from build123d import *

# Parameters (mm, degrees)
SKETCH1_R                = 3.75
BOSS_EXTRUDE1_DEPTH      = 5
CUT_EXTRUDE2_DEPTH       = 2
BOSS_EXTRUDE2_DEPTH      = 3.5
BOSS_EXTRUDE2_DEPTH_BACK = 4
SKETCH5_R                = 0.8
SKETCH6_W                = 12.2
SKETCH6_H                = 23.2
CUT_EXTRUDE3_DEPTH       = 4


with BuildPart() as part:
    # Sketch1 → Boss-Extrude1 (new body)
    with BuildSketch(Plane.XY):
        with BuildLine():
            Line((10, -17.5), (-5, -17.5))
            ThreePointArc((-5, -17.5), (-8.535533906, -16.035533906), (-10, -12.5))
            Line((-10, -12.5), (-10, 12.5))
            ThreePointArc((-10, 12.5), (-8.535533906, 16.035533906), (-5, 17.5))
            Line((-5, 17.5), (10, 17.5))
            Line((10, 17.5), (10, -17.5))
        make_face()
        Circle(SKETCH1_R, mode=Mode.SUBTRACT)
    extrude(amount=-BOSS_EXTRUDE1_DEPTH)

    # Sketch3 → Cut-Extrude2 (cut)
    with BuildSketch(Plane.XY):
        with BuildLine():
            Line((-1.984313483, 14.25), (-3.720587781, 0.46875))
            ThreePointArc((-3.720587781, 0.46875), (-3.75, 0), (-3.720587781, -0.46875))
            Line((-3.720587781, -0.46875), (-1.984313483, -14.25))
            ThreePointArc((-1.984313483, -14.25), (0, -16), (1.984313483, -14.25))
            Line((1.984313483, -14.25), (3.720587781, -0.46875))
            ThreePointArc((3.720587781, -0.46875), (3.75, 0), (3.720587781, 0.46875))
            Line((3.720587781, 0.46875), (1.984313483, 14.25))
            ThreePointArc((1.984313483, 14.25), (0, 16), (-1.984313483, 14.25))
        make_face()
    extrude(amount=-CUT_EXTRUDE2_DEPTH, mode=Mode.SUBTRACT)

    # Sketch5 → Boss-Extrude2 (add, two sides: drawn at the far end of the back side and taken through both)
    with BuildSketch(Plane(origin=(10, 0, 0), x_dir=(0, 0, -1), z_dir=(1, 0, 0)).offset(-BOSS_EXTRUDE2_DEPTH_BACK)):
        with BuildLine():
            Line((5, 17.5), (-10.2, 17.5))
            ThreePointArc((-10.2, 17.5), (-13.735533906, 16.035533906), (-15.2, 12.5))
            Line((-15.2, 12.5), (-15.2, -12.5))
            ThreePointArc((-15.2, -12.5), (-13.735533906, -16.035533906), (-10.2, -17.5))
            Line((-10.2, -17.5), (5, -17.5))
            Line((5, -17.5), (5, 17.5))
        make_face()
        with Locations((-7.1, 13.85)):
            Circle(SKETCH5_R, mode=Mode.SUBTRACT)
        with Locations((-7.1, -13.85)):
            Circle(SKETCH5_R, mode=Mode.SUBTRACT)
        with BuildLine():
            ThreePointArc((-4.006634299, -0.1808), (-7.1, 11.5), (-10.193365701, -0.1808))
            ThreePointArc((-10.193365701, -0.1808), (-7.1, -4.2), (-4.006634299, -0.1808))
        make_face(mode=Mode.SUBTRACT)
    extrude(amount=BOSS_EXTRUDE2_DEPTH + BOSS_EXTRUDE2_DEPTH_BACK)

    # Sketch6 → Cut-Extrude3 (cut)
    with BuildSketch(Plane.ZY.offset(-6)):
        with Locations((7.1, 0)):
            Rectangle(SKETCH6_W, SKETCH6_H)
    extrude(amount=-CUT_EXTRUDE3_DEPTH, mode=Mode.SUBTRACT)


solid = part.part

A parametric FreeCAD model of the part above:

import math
import FreeCAD as App
import Part
import Sketcher

doc = App.newDocument("Part")
body = doc.addObject("PartDesign::Body", "Body")

# Sketch on XY plane
sketch1 = body.newObject("Sketcher::SketchObject", "Sketch")
sketch1.AttachmentSupport = (doc.getObject("XY_Plane"), [""])
sketch1.MapMode = "FlatFace"
sketch1.addGeometry([
    Part.LineSegment(App.Vector(-5, -17.5, 0), App.Vector(10, -17.5, 0)),  # 0
    Part.LineSegment(App.Vector(10, -17.5, 0), App.Vector(10, 17.5, 0)),  # 1
    Part.LineSegment(App.Vector(10, 17.5, 0), App.Vector(-5, 17.5, 0)),  # 2
    Part.ArcOfCircle(Part.Circle(App.Vector(-5, 12.5, 0), App.Vector(0, 0, 1), 5), math.radians(90), math.radians(180)),  # 3
    Part.LineSegment(App.Vector(-10, 12.5, 0), App.Vector(-10, -12.5, 0)),  # 4
    Part.ArcOfCircle(Part.Circle(App.Vector(-5, -12.5, 0), App.Vector(0, 0, 1), 5), math.radians(180), math.radians(270)),  # 5
    Part.Circle(App.Vector(0, 0, 0), App.Vector(0, 0, 1), 3.8),  # 6
], False)
sketch1.addConstraint([
    Sketcher.Constraint("Coincident", 0, 2, 1, 1),
    Sketcher.Constraint("Coincident", 1, 2, 2, 1),
    Sketcher.Constraint("Tangent", 2, 2, 3, 1),
    Sketcher.Constraint("Tangent", 3, 2, 4, 1),
    Sketcher.Constraint("Tangent", 4, 2, 5, 1),
    Sketcher.Constraint("Tangent", 5, 2, 0, 1),
    Sketcher.Constraint("Horizontal", 0),
    Sketcher.Constraint("Vertical", 1),
    Sketcher.Constraint("Horizontal", 2),
    Sketcher.Constraint("Vertical", 4),
    Sketcher.Constraint("Coincident", 6, 3, -1, 1),
    Sketcher.Constraint("Equal", 3, 5),
    Sketcher.Constraint("Radius", 3, 5.0),
    Sketcher.Constraint("Diameter", 6, 7.5),
    Sketcher.Constraint("DistanceX", 0, 1, 0, 2, 15.0),
    Sketcher.Constraint("DistanceY", 1, 1, 1, 2, 35.0),
    Sketcher.Constraint("DistanceX", 3, 3, -1, 1, 5.0),
    Sketcher.Constraint("DistanceY", -1, 1, 3, 3, 12.5),
])
pad1 = body.newObject("PartDesign::Pad", "Pad")
pad1.Profile = sketch1
pad1.Length = 5
pad1.Reversed = True

# Sketch on XY plane
sketch2 = body.newObject("Sketcher::SketchObject", "Sketch001")
sketch2.AttachmentSupport = (doc.getObject("XY_Plane"), [""])
sketch2.MapMode = "FlatFace"
sketch2.addGeometry([
    Part.LineSegment(App.Vector(-2, 14.2, 0), App.Vector(-3.7, 0.5, 0)),  # 0
    Part.ArcOfCircle(Part.Circle(App.Vector(0, 0, 0), App.Vector(0, 0, 1), 3.7), math.radians(172.82), math.radians(187.18)),  # 1
    Part.LineSegment(App.Vector(-3.7, -0.5, 0), App.Vector(-2, -14.2, 0)),  # 2
    Part.ArcOfCircle(Part.Circle(App.Vector(0, -14, 0), App.Vector(0, 0, 1), 2), math.radians(-173), math.radians(-7)),  # 3
    Part.LineSegment(App.Vector(2, -14.2, 0), App.Vector(3.7, -0.5, 0)),  # 4
    Part.ArcOfCircle(Part.Circle(App.Vector(0, 0, 0), App.Vector(0, 0, 1), 3.7), math.radians(-7.18), math.radians(7.18)),  # 5
    Part.LineSegment(App.Vector(3.7, 0.5, 0), App.Vector(2, 14.2, 0)),  # 6
    Part.ArcOfCircle(Part.Circle(App.Vector(0, 14, 0), App.Vector(0, 0, 1), 2), math.radians(7), math.radians(173)),  # 7
], False)
sketch2.addConstraint([
    Sketcher.Constraint("Tangent", 0, 2, 1, 1),
    Sketcher.Constraint("Tangent", 1, 2, 2, 1),
    Sketcher.Constraint("Tangent", 2, 2, 3, 1),
    Sketcher.Constraint("Tangent", 3, 2, 4, 1),
    Sketcher.Constraint("Tangent", 4, 2, 5, 1),
    Sketcher.Constraint("Tangent", 5, 2, 6, 1),
    Sketcher.Constraint("Tangent", 6, 2, 7, 1),
    Sketcher.Constraint("Tangent", 7, 2, 0, 1),
    Sketcher.Constraint("Coincident", 1, 3, -1, 1),
    Sketcher.Constraint("Coincident", 5, 3, -1, 1),
    Sketcher.Constraint("Equal", 1, 5),
    Sketcher.Constraint("Equal", 3, 7),
    Sketcher.Constraint("Symmetric", 3, 3, 7, 3, -1, 1),
    Sketcher.Constraint("PointOnObject", 3, 3, -2),
    Sketcher.Constraint("Radius", 3, 2.0),
    Sketcher.Constraint("Radius", 1, 3.75),
    Sketcher.Constraint("DistanceY", 3, 3, -1, 1, 14.0),
])
pocket1 = body.newObject("PartDesign::Pocket", "Pocket")
pocket1.Profile = sketch2
pocket1.Length = 2

# Sketch on YZ plane
sketch3 = body.newObject("Sketcher::SketchObject", "Sketch002")
sketch3.AttachmentSupport = (doc.getObject("YZ_Plane"), [""])
sketch3.MapMode = "FlatFace"
sketch3.AttachmentOffset = App.Placement(App.Vector(0, 0, 10), App.Rotation())
sketch3.addGeometry([
    Part.LineSegment(App.Vector(17.5, -5, 0), App.Vector(17.5, 10.2, 0)),  # 0
    Part.ArcOfCircle(Part.Circle(App.Vector(12.5, 10.2, 0), App.Vector(0, 0, 1), 5), math.radians(0), math.radians(90)),  # 1
    Part.LineSegment(App.Vector(12.5, 15.2, 0), App.Vector(-12.5, 15.2, 0)),  # 2
    Part.ArcOfCircle(Part.Circle(App.Vector(-12.5, 10.2, 0), App.Vector(0, 0, 1), 5), math.radians(90), math.radians(180)),  # 3
    Part.LineSegment(App.Vector(-17.5, 10.2, 0), App.Vector(-17.5, -5, 0)),  # 4
    Part.LineSegment(App.Vector(-17.5, -5, 0), App.Vector(17.5, -5, 0)),  # 5
    Part.Circle(App.Vector(-13.8, 7.1, 0), App.Vector(0, 0, 1), 0.8),  # 6
    Part.ArcOfCircle(Part.Circle(App.Vector(5.2, 7.1, 0), App.Vector(0, 0, 1), 6.2), math.radians(-150), math.radians(150)),  # 7
    Part.ArcOfCircle(Part.Circle(App.Vector(-1, 7.1, 0), App.Vector(0, 0, 1), 3.2), math.radians(75), math.radians(285)),  # 8
    Part.Circle(App.Vector(13.8, 7.1, 0), App.Vector(0, 0, 1), 0.8),  # 9
], False)
sketch3.addConstraint([
    Sketcher.Constraint("Tangent", 0, 2, 1, 1),
    Sketcher.Constraint("Tangent", 1, 2, 2, 1),
    Sketcher.Constraint("Tangent", 2, 2, 3, 1),
    Sketcher.Constraint("Tangent", 3, 2, 4, 1),
    Sketcher.Constraint("Coincident", 4, 2, 5, 1),
    Sketcher.Constraint("Coincident", 5, 2, 0, 1),
    Sketcher.Constraint("Coincident", 7, 1, 8, 2),
    Sketcher.Constraint("Coincident", 8, 1, 7, 2),
    Sketcher.Constraint("Vertical", 0),
    Sketcher.Constraint("Horizontal", 2),
    Sketcher.Constraint("Vertical", 4),
    Sketcher.Constraint("Horizontal", 5),
    Sketcher.Constraint("Equal", 1, 3),
    Sketcher.Constraint("Equal", 6, 9),
    Sketcher.Constraint("Symmetric", 6, 3, 9, 3, -2),
    Sketcher.Constraint("Horizontal", 6, 3, 7, 3),
    Sketcher.Constraint("Horizontal", 7, 3, 8, 3),
    Sketcher.Constraint("Radius", 1, 5.0),
    Sketcher.Constraint("Diameter", 6, 1.6),
    Sketcher.Constraint("Radius", 8, 3.2),
    Sketcher.Constraint("DistanceX", 2, 2, 2, 1, 25.0),
    Sketcher.Constraint("Radius", 7, 6.25),
    Sketcher.Constraint("DistanceY", 0, 1, 0, 2, 15.2),
    Sketcher.Constraint("DistanceX", 8, 3, -1, 1, 1.0),
    Sketcher.Constraint("DistanceY", 4, 2, -1, 1, 5.0),
    Sketcher.Constraint("DistanceX", -1, 1, 1, 3, 12.5),
    Sketcher.Constraint("DistanceY", -1, 1, 6, 3, 7.1),
    Sketcher.Constraint("DistanceX", 6, 3, 7, 3, 19.1),
    Sketcher.Constraint("DistanceX", 7, 3, 9, 3, 8.6),
])
pad2 = body.newObject("PartDesign::Pad", "Pad001")
pad2.Profile = sketch3
pad2.Type = "TwoLengths"
pad2.Length = 3.5
pad2.Length2 = 4

# Sketch on YZ plane
sketch4 = body.newObject("Sketcher::SketchObject", "Sketch003")
sketch4.AttachmentSupport = (doc.getObject("YZ_Plane"), [""])
sketch4.MapMode = "FlatFace"
sketch4.AttachmentOffset = App.Placement(App.Vector(0, 0, 6), App.Rotation())
sketch4.addGeometry([
    Part.LineSegment(App.Vector(12, 1, 0), App.Vector(-12, 1, 0)),
    Part.LineSegment(App.Vector(-12, 1, 0), App.Vector(-12, 13, 0)),
    Part.LineSegment(App.Vector(-12, 13, 0), App.Vector(12, 13, 0)),
    Part.LineSegment(App.Vector(12, 13, 0), App.Vector(12, 1, 0)),
], False)
sketch4.addConstraint([
    Sketcher.Constraint("Coincident", 0, 2, 1, 1),
    Sketcher.Constraint("Coincident", 1, 2, 2, 1),
    Sketcher.Constraint("Coincident", 2, 2, 3, 1),
    Sketcher.Constraint("Coincident", 3, 2, 0, 1),
    Sketcher.Constraint("Horizontal", 0),
    Sketcher.Constraint("Vertical", 1),
    Sketcher.Constraint("Horizontal", 2),
    Sketcher.Constraint("Vertical", 3),
    Sketcher.Constraint("DistanceX", 0, 2, 0, 1, 23.2),
    Sketcher.Constraint("DistanceY", 1, 1, 1, 2, 12.2),
    Sketcher.Constraint("DistanceY", -1, 1, 0, 2, 1.0),
    Sketcher.Constraint("DistanceX", 0, 2, -1, 1, 11.6),
])
pocket2 = body.newObject("PartDesign::Pocket", "Pocket001")
pocket2.Profile = sketch4
pocket2.Length = 4
pocket2.Reversed = True

doc.recompute()
